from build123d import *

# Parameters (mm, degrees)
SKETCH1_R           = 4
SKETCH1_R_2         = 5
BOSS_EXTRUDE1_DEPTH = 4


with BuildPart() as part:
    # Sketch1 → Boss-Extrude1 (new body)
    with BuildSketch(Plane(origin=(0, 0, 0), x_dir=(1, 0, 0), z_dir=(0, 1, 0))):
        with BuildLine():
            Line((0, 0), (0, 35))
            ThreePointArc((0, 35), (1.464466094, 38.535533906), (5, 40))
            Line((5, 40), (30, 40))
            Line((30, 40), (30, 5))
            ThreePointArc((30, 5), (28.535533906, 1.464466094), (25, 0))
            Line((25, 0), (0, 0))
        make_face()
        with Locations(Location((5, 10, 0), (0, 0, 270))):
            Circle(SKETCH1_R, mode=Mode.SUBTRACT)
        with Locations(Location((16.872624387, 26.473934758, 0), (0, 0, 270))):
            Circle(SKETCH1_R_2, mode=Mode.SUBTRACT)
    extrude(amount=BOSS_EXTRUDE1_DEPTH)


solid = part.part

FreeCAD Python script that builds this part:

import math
import FreeCAD as App
import Part
import Sketcher
from FreeCAD import Vector

doc = App.newDocument("Part")
params = doc.addObject("Spreadsheet::Sheet", "Params")
for row, (alias, value) in enumerate([
    ("sketch1_diameter", "8 mm"),
    ("sketch1_diameter2", "10 mm"),
    ("sketch1_width", "25 mm"),
    ("sketch1_height", "35 mm"),
    ("pad1_length", "4 mm"),
], start=1):
    params.set(f"A{row}", alias)
    params.set(f"B{row}", "=" + value)
    params.setAlias(f"B{row}", alias)

body = doc.addObject("PartDesign::Body", "Body")

# Sketch on XZ plane
sketch1 = body.newObject("Sketcher::SketchObject", "Sketch")
sketch1.AttachmentSupport = (doc.getObject("XZ_Plane"), [""])
sketch1.MapMode = "FlatFace"
sketch1.addGeometry([
    Part.LineSegment(Vector(0, -35, 0), Vector(0, 0, 0)),  # 0
    Part.LineSegment(Vector(0, 0, 0), Vector(25, 0, 0)),  # 1
    Part.ArcOfCircle(Part.Circle(Vector(25, -5, 0), Vector(0, 0, 1), 5), math.radians(0), math.radians(90)),  # 2
    Part.LineSegment(Vector(30, -5, 0), Vector(30, -40, 0)),  # 3
    Part.LineSegment(Vector(30, -40, 0), Vector(5, -40, 0)),  # 4
    Part.ArcOfCircle(Part.Circle(Vector(5, -35, 0), Vector(0, 0, 1), 5), math.radians(180), math.radians(270)),  # 5
    Part.Circle(Vector(5, -10, 0), Vector(0, 0, 1), 4),  # 6
    Part.Circle(Vector(16.9, -26.5, 0), Vector(0, 0, 1), 5),  # 7
], False)
sketch1.addConstraint([
    Sketcher.Constraint("Coincident", 0, 2, 1, 1),
    Sketcher.Constraint("Tangent", 1, 2, 2, 2),
    Sketcher.Constraint("Tangent", 2, 1, 3, 1),
    Sketcher.Constraint("Coincident", 3, 2, 4, 1),
    Sketcher.Constraint("Tangent", 4, 2, 5, 2),
    Sketcher.Constraint("Tangent", 5, 1, 0, 1),
    Sketcher.Constraint("Vertical", 0),
    Sketcher.Constraint("Horizontal", 1),
    Sketcher.Constraint("Vertical", 3),
    Sketcher.Constraint("Horizontal", 4),
    Sketcher.Constraint("Coincident", 0, 2, -1, 1),
    Sketcher.Constraint("Equal", 2, 5),
    Sketcher.Constraint("Equal", 5, 7),
    Sketcher.Constraint("Vertical", 5, 3, 6, 3),
    Sketcher.Constraint("Diameter", 6, 8.0),
    Sketcher.Constraint("Diameter", 7, 10.0),
    Sketcher.Constraint("DistanceX", 1, 1, 1, 2, 25.0),
    Sketcher.Constraint("DistanceY", 0, 1, 0, 2, 35.0),
    Sketcher.Constraint("DistanceY", 6, 3, -1, 1, 10.0),
    Sketcher.Constraint("DistanceX", -1, 1, 7, 3, 16.872624),
    Sketcher.Constraint("DistanceY", 7, 3, -1, 1, 26.473935),
])
sketch1.setExpression("Constraints[14]", "Params.sketch1_diameter")
sketch1.setExpression("Constraints[15]", "Params.sketch1_diameter2")
sketch1.setExpression("Constraints[16]", "Params.sketch1_width")
sketch1.setExpression("Constraints[17]", "Params.sketch1_height")
pad1 = body.newObject("PartDesign::Pad", "Pad")
pad1.Profile = sketch1
pad1.setExpression("Length", "Params.pad1_length")
pad1.Reversed = True

doc.recompute()
